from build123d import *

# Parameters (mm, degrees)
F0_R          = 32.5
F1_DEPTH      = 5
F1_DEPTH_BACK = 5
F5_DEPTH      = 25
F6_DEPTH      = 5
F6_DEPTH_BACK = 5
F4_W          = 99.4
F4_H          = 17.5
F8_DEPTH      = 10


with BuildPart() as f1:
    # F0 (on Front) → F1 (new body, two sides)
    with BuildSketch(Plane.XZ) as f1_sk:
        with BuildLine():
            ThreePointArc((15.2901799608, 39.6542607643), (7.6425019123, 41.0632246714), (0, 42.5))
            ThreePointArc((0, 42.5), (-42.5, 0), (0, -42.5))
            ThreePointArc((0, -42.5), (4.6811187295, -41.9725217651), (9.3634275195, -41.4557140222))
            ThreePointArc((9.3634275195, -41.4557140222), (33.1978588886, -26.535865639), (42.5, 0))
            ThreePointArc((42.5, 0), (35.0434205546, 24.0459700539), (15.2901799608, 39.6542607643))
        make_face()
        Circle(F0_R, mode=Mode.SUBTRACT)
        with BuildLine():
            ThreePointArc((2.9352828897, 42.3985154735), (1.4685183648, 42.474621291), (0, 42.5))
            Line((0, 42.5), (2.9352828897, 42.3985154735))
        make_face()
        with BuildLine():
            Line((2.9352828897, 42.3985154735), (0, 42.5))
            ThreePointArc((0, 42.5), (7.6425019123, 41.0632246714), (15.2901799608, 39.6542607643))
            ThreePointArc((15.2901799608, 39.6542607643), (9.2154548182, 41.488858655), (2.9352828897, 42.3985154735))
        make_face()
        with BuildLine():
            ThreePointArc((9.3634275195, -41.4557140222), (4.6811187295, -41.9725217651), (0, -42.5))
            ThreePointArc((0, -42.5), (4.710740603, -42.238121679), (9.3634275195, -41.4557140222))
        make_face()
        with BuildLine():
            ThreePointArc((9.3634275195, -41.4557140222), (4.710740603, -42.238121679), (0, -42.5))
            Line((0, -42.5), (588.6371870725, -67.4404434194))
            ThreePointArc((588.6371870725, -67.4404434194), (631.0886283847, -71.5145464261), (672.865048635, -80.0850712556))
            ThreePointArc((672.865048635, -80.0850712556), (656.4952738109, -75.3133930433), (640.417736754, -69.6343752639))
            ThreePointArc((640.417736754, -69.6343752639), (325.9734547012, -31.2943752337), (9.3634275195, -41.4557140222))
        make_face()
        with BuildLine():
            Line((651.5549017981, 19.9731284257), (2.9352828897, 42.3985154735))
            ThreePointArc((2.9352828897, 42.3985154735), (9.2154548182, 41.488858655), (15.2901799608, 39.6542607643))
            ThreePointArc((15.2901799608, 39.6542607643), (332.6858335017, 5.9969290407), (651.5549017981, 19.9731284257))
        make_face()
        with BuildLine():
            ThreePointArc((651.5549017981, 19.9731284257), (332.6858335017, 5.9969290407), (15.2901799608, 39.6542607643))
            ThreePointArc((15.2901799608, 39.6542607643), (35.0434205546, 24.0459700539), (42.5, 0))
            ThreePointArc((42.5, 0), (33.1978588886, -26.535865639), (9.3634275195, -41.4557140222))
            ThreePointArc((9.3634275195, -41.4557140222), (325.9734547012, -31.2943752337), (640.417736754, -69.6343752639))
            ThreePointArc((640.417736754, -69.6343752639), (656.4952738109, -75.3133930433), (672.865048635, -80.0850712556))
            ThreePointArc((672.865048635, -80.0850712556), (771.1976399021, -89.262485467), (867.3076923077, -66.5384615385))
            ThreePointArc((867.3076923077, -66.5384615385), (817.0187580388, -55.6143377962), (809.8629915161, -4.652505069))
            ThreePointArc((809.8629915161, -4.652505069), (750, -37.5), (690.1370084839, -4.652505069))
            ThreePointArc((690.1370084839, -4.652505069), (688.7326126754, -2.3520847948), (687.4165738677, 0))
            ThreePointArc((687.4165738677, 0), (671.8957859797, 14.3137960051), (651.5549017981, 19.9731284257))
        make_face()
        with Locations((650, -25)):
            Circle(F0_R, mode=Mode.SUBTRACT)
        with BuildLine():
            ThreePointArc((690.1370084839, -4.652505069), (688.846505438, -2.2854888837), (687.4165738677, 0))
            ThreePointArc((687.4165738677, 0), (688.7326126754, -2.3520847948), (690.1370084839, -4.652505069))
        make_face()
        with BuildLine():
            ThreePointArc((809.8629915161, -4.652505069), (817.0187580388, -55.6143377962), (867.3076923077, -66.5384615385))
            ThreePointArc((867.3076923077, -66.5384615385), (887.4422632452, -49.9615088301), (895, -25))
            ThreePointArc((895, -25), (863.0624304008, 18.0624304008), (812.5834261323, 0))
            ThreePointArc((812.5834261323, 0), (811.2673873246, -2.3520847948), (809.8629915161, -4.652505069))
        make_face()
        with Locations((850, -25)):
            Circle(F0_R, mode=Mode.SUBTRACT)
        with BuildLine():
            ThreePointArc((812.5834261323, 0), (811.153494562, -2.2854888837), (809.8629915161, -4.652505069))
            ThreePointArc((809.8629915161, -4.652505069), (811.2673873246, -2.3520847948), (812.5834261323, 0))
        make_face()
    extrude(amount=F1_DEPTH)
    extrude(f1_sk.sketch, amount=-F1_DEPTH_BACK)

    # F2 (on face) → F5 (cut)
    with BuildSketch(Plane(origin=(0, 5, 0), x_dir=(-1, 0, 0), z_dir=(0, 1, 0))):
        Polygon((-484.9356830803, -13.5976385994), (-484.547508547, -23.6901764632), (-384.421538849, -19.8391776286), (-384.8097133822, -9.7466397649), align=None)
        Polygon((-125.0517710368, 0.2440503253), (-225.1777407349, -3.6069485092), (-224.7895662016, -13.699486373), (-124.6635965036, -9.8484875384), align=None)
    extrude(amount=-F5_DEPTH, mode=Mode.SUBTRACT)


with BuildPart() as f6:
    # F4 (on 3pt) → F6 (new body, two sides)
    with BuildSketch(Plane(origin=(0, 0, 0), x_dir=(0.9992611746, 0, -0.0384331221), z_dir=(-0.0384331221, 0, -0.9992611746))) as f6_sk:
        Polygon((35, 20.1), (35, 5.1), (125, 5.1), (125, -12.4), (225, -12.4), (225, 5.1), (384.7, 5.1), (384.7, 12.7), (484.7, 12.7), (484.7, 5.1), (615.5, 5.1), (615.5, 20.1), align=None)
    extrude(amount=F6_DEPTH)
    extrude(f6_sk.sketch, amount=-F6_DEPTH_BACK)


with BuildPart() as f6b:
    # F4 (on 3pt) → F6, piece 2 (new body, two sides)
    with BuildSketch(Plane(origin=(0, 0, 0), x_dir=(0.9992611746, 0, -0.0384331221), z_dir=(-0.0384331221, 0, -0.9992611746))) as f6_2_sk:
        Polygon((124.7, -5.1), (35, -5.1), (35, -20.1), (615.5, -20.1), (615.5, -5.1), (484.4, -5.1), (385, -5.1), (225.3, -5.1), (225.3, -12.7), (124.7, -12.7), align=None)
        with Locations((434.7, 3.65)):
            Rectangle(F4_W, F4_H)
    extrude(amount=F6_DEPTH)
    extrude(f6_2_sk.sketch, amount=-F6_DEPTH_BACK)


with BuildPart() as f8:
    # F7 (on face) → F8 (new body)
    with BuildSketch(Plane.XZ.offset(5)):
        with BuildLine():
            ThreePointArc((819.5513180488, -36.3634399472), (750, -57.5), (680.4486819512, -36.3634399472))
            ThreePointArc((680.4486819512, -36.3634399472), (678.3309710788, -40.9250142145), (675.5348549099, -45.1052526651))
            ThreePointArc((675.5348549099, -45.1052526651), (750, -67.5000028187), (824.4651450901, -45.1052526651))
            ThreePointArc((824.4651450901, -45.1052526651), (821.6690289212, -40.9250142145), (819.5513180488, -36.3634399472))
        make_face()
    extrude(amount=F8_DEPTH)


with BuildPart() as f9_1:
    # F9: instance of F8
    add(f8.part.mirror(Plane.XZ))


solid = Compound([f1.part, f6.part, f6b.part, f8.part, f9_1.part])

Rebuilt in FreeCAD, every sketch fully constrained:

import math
import FreeCAD as App
import Part
import Sketcher
Q = App.Units.Quantity

doc = App.newDocument("Part")
body = doc.addObject("PartDesign::Body", "Body")

# Sketch on XZ plane
sketch1 = body.newObject("Sketcher::SketchObject", "Sketch")
sketch1.AttachmentSupport = (doc.getObject("XZ_Plane"), [""])
sketch1.MapMode = "FlatFace"
sketch1.addGeometry([
    Part.LineSegment(App.Vector(651.6, 20, 0), App.Vector(2.9, 42.4, 0)),  # 0
    Part.ArcOfCircle(Part.Circle(App.Vector(0, 0, 0), App.Vector(0, 0, 1), 42.5), math.radians(86.04), math.radians(90)),  # 1
    Part.ArcOfCircle(Part.Circle(App.Vector(0, 0, 0), App.Vector(0, 0, 1), 42.5), math.radians(90), math.radians(270)),  # 2
    Part.LineSegment(App.Vector(0, -42.5, 0), App.Vector(588.6, -67.4, 0)),  # 3
    Part.ArcOfCircle(Part.Circle(App.Vector(571.7, -467.1, 0), App.Vector(0, 0, 1), 400), math.radians(75.35), math.radians(87.57)),  # 4
    Part.ArcOfCircle(Part.Circle(App.Vector(750, 215, 0), App.Vector(0, 0, 1), 305), math.radians(-105), math.radians(-67)),  # 5
    Part.ArcOfCircle(Part.Circle(App.Vector(850, -25, 0), App.Vector(0, 0, 1), 45), math.radians(-67), math.radians(0)),  # 6
    Part.ArcOfCircle(Part.Circle(App.Vector(850, -25, 0), App.Vector(0, 0, 1), 45), math.radians(0), math.radians(146)),  # 7
    Part.ArcOfCircle(Part.Circle(App.Vector(850, -25, 0), App.Vector(0, 0, 1), 45), math.radians(146.25), math.radians(153.12)),  # 8
    Part.ArcOfCircle(Part.Circle(App.Vector(750, 33.5, 0), App.Vector(0, 0, 1), 71), math.radians(-148), math.radians(-32)),  # 9
    Part.ArcOfCircle(Part.Circle(App.Vector(650, -25, 0), App.Vector(0, 0, 1), 45), math.radians(26.88), math.radians(33.75)),  # 10
    Part.ArcOfCircle(Part.Circle(App.Vector(650, -25, 0), App.Vector(0, 0, 1), 45), math.radians(34), math.radians(88)),  # 11
    Part.Circle(App.Vector(650, -25, 0), App.Vector(0, 0, 1), 32.5),  # 12
    Part.Circle(App.Vector(850, -25, 0), App.Vector(0, 0, 1), 32.5),  # 13
    Part.Circle(App.Vector(0, 0, 0), App.Vector(0, 0, 1), 32.5),  # 14
], False)
sketch1.addConstraint([
    Sketcher.Constraint("Coincident", 0, 2, 1, 1),
    Sketcher.Constraint("Tangent", 1, 2, 2, 1),
    Sketcher.Constraint("Coincident", 2, 2, 3, 1),
    Sketcher.Constraint("Tangent", 3, 2, 4, 2),
    Sketcher.Constraint("Tangent", 4, 1, 5, 1),
    Sketcher.Constraint("Tangent", 5, 2, 6, 1),
    Sketcher.Constraint("Tangent", 6, 2, 7, 1),
    Sketcher.Constraint("Tangent", 7, 2, 8, 1),
    Sketcher.Constraint("Coincident", 8, 2, 9, 2),
    Sketcher.Constraint("Coincident", 9, 1, 10, 1),
    Sketcher.Constraint("Tangent", 10, 2, 11, 1),
    Sketcher.Constraint("Tangent", 11, 2, 0, 1),
    Sketcher.Constraint("Coincident", 1, 3, -1, 1),
    Sketcher.Constraint("Coincident", 14, 3, -1, 1),
    Sketcher.Constraint("Coincident", 8, 3, 6, 3),
    Sketcher.Constraint("Coincident", 12, 3, 10, 3),
    Sketcher.Constraint("Coincident", 13, 3, 6, 3),
    Sketcher.Constraint("Equal", 1, 2),
    Sketcher.Constraint("Equal", 8, 10),
    Sketcher.Constraint("Equal", 10, 11),
    Sketcher.Constraint("Equal", 12, 13),
    Sketcher.Constraint("Equal", 13, 14),
    Sketcher.Constraint("PointOnObject", 1, 2, -2),
    Sketcher.Constraint("PointOnObject", 2, 2, -2),
    Sketcher.Constraint("PointOnObject", 7, 2, -1),
    Sketcher.Constraint("PointOnObject", 10, 2, -1),
    Sketcher.Constraint("Horizontal", 8, 3, 10, 3),
    Sketcher.Constraint("Horizontal", 13, 3, 6, 2),
    Sketcher.Constraint("Horizontal", 8, 2, 9, 1),
    Sketcher.Constraint("Vertical", 5, 3, 9, 3),
    Sketcher.Constraint("Diameter", 12, Q("65 mm")),
    Sketcher.Constraint("Radius", 4, Q("400 mm")),
    Sketcher.Constraint("Radius", 5, Q("305 mm")),
    Sketcher.Constraint("Radius", 6, Q("45 mm")),
    Sketcher.Constraint("Radius", 1, Q("42.5 mm")),
    Sketcher.Constraint("DistanceX", -1, 1, 5, 3, Q("750 mm")),
    Sketcher.Constraint("DistanceY", -1, 1, 5, 3, Q("215 mm")),
    Sketcher.Constraint("DistanceX", -1, 1, 6, 3, Q("850 mm")),
    Sketcher.Constraint("Radius", 9, Q("70.97247 mm")),
    Sketcher.Constraint("Distance", 0, Q("649.007171 mm")),
    Sketcher.Constraint("Distance", 3, Q("589.165311 mm")),
    Sketcher.Constraint("DistanceY", -1, 1, 9, 3, Q("33.47247 mm")),
])
pad1 = body.newObject("PartDesign::Pad", "Pad")
pad1.Profile = sketch1
pad1.Type = "TwoLengths"
pad1.Length = 5
pad1.Length2 = 5

# Sketch on XZ plane
sketch2 = body.newObject("Sketcher::SketchObject", "Sketch001")
sketch2.AttachmentSupport = (doc.getObject("XZ_Plane"), [""])
sketch2.MapMode = "FlatFace"
sketch2.AttachmentOffset = App.Placement(App.Vector(0, 0, -5), App.Rotation())
sketch2.addGeometry([
    Part.LineSegment(App.Vector(485, -14, 0), App.Vector(485, -24, 0)),  # 0
    Part.LineSegment(App.Vector(485, -24, 0), App.Vector(384, -20, 0)),  # 1
    Part.LineSegment(App.Vector(384, -20, 0), App.Vector(385, -10, 0)),  # 2
    Part.LineSegment(App.Vector(385, -10, 0), App.Vector(485, -14, 0)),  # 3
    Part.LineSegment(App.Vector(125, 0, 0), App.Vector(225, -4, 0)),  # 4
    Part.LineSegment(App.Vector(225, -4, 0), App.Vector(225, -14, 0)),  # 5
    Part.LineSegment(App.Vector(225, -14, 0), App.Vector(125, -10, 0)),  # 6
    Part.LineSegment(App.Vector(125, -10, 0), App.Vector(125, 0, 0)),  # 7
], False)
sketch2.addConstraint([
    Sketcher.Constraint("Coincident", 0, 2, 1, 1),
    Sketcher.Constraint("Coincident", 1, 2, 2, 1),
    Sketcher.Constraint("Coincident", 2, 2, 3, 1),
    Sketcher.Constraint("Coincident", 3, 2, 0, 1),
    Sketcher.Constraint("Coincident", 4, 2, 5, 1),
    Sketcher.Constraint("Coincident", 5, 2, 6, 1),
    Sketcher.Constraint("Coincident", 6, 2, 7, 1),
    Sketcher.Constraint("Coincident", 7, 2, 4, 1),
    Sketcher.Constraint("Perpendicular", 0, 1),
    Sketcher.Constraint("Perpendicular", 1, 2),
    Sketcher.Constraint("Perpendicular", 2, 3),
    Sketcher.Constraint("Parallel", 3, 4),
    Sketcher.Constraint("Perpendicular", 4, 5),
    Sketcher.Constraint("Perpendicular", 5, 6),
    Sketcher.Constraint("Perpendicular", 6, 7),
    Sketcher.Constraint("Equal", 3, 4),
    Sketcher.Constraint("Equal", 2, 5),
    Sketcher.Constraint("Distance", 0, Q("10.1 mm")),
    Sketcher.Constraint("Distance", 1, Q("100.2 mm")),
    Sketcher.Constraint("DistanceY", 0, 2, 1, 2, Q("3.850999 mm")),
    Sketcher.Constraint("DistanceX", 4, 2, 1, 2, Q("159.243798 mm")),
    Sketcher.Constraint("DistanceX", -1, 1, 0, 2, Q("484.547509 mm")),
    Sketcher.Constraint("DistanceY", 2, 2, -1, 1, Q("9.74664 mm")),
    Sketcher.Constraint("DistanceY", 4, 2, -1, 1, Q("3.606949 mm")),
])
pocket1 = body.newObject("PartDesign::Pocket", "Pocket")
pocket1.Profile = sketch2
pocket1.Length = 25
pocket1.Reversed = True
body2 = doc.addObject("PartDesign::Body", "Body001")

# Sketch on an angled plane
sketch3 = body2.newObject("Sketcher::SketchObject", "Sketch002")
sketch3.Placement = App.Placement(App.Vector(0, 0, 0), App.Rotation(App.Vector(0.999261175, 0, -0.038433122), App.Vector(0, -1.000000001, 0), App.Vector(-0.038433122, 0, -0.999261175), "ZXY"))
sketch3.addGeometry([
    Part.LineSegment(App.Vector(35, 20, 0), App.Vector(35, 5, 0)),  # 0
    Part.LineSegment(App.Vector(35, 5, 0), App.Vector(125, 5, 0)),  # 1
    Part.LineSegment(App.Vector(125, 5, 0), App.Vector(125, -12, 0)),  # 2
    Part.LineSegment(App.Vector(125, -12, 0), App.Vector(225, -12, 0)),  # 3
    Part.LineSegment(App.Vector(225, -12, 0), App.Vector(225, 5, 0)),  # 4
    Part.LineSegment(App.Vector(225, 5, 0), App.Vector(385, 5, 0)),  # 5
    Part.LineSegment(App.Vector(385, 5, 0), App.Vector(385, 13, 0)),  # 6
    Part.LineSegment(App.Vector(385, 13, 0), App.Vector(485, 13, 0)),  # 7
    Part.LineSegment(App.Vector(485, 13, 0), App.Vector(485, 5, 0)),  # 8
    Part.LineSegment(App.Vector(485, 5, 0), App.Vector(616, 5, 0)),  # 9
    Part.LineSegment(App.Vector(616, 5, 0), App.Vector(616, 20, 0)),  # 10
    Part.LineSegment(App.Vector(616, 20, 0), App.Vector(35, 20, 0)),  # 11
], False)
sketch3.addConstraint([
    Sketcher.Constraint("Coincident", 0, 2, 1, 1),
    Sketcher.Constraint("Coincident", 1, 2, 2, 1),
    Sketcher.Constraint("Coincident", 2, 2, 3, 1),
    Sketcher.Constraint("Coincident", 3, 2, 4, 1),
    Sketcher.Constraint("Coincident", 4, 2, 5, 1),
    Sketcher.Constraint("Coincident", 5, 2, 6, 1),
    Sketcher.Constraint("Coincident", 6, 2, 7, 1),
    Sketcher.Constraint("Coincident", 7, 2, 8, 1),
    Sketcher.Constraint("Coincident", 8, 2, 9, 1),
    Sketcher.Constraint("Coincident", 9, 2, 10, 1),
    Sketcher.Constraint("Coincident", 10, 2, 11, 1),
    Sketcher.Constraint("Coincident", 11, 2, 0, 1),
    Sketcher.Constraint("Vertical", 0),
    Sketcher.Constraint("Horizontal", 1),
    Sketcher.Constraint("Vertical", 2),
    Sketcher.Constraint("Horizontal", 3),
    Sketcher.Constraint("Vertical", 4),
    Sketcher.Constraint("Horizontal", 5),
    Sketcher.Constraint("Vertical", 6),
    Sketcher.Constraint("Horizontal", 7),
    Sketcher.Constraint("Vertical", 8),
    Sketcher.Constraint("Horizontal", 9),
    Sketcher.Constraint("Vertical", 10),
    Sketcher.Constraint("Horizontal", 11),
    Sketcher.Constraint("Horizontal", 1, 2, 4, 2),
    Sketcher.Constraint("Horizontal", 5, 2, 8, 2),
    Sketcher.Constraint("Equal", 3, 7),
    Sketcher.Constraint("DistanceX", 1, 1, 1, 2, Q("90 mm")),
    Sketcher.Constraint("DistanceX", 3, 1, 3, 2, Q("100 mm")),
    Sketcher.Constraint("DistanceY", 0, 2, 0, 1, Q("15 mm")),
    Sketcher.Constraint("DistanceX", 5, 1, 5, 2, Q("159.7 mm")),
    Sketcher.Constraint("DistanceX", 9, 1, 9, 2, Q("130.8 mm")),
    Sketcher.Constraint("DistanceY", 2, 2, 2, 1, Q("17.5 mm")),
    Sketcher.Constraint("DistanceY", 6, 1, 6, 2, Q("7.6 mm")),
    Sketcher.Constraint("DistanceX", -1, 1, 0, 2, Q("35 mm")),
    Sketcher.Constraint("DistanceY", -1, 1, 0, 2, Q("5.1 mm")),
])
pad2 = body2.newObject("PartDesign::Pad", "Pad001")
pad2.Profile = sketch3
pad2.Type = "TwoLengths"
pad2.Length = 5
pad2.Length2 = 5
body3 = doc.addObject("PartDesign::Body", "Body002")

# Sketch on an angled plane
sketch4 = body3.newObject("Sketcher::SketchObject", "Sketch003")
sketch4.Placement = App.Placement(App.Vector(0, 0, 0), App.Rotation(App.Vector(0.999261175, 0, -0.038433122), App.Vector(0, -1.000000001, 0), App.Vector(-0.038433122, 0, -0.999261175), "ZXY"))
sketch4.addGeometry([
    Part.LineSegment(App.Vector(125, -5, 0), App.Vector(35, -5, 0)),  # 0
    Part.LineSegment(App.Vector(35, -5, 0), App.Vector(35, -20, 0)),  # 1
    Part.LineSegment(App.Vector(35, -20, 0), App.Vector(616, -20, 0)),  # 2
    Part.LineSegment(App.Vector(616, -20, 0), App.Vector(616, -5, 0)),  # 3
    Part.LineSegment(App.Vector(616, -5, 0), App.Vector(484, -5, 0)),  # 4
    Part.LineSegment(App.Vector(484, -5, 0), App.Vector(484, 12, 0)),  # 5
    Part.LineSegment(App.Vector(484, 12, 0), App.Vector(385, 12, 0)),  # 6
    Part.LineSegment(App.Vector(385, 12, 0), App.Vector(385, -5, 0)),  # 7
    Part.LineSegment(App.Vector(385, -5, 0), App.Vector(225, -5, 0)),  # 8
    Part.LineSegment(App.Vector(225, -5, 0), App.Vector(225, -13, 0)),  # 9
    Part.LineSegment(App.Vector(225, -13, 0), App.Vector(125, -13, 0)),  # 10
    Part.LineSegment(App.Vector(125, -13, 0), App.Vector(125, -5, 0)),  # 11
], False)
sketch4.addConstraint([
    Sketcher.Constraint("Coincident", 0, 2, 1, 1),
    Sketcher.Constraint("Coincident", 1, 2, 2, 1),
    Sketcher.Constraint("Coincident", 2, 2, 3, 1),
    Sketcher.Constraint("Coincident", 3, 2, 4, 1),
    Sketcher.Constraint("Coincident", 4, 2, 5, 1),
    Sketcher.Constraint("Coincident", 5, 2, 6, 1),
    Sketcher.Constraint("Coincident", 6, 2, 7, 1),
    Sketcher.Constraint("Coincident", 7, 2, 8, 1),
    Sketcher.Constraint("Coincident", 8, 2, 9, 1),
    Sketcher.Constraint("Coincident", 9, 2, 10, 1),
    Sketcher.Constraint("Coincident", 10, 2, 11, 1),
    Sketcher.Constraint("Coincident", 11, 2, 0, 1),
    Sketcher.Constraint("Horizontal", 0),
    Sketcher.Constraint("Vertical", 1),
    Sketcher.Constraint("Horizontal", 2),
    Sketcher.Constraint("Vertical", 3),
    Sketcher.Constraint("Horizontal", 4),
    Sketcher.Constraint("Vertical", 5),
    Sketcher.Constraint("Horizontal", 6),
    Sketcher.Constraint("Vertical", 7),
    Sketcher.Constraint("Horizontal", 8),
    Sketcher.Constraint("Vertical", 9),
    Sketcher.Constraint("Horizontal", 10),
    Sketcher.Constraint("Vertical", 11),
    Sketcher.Constraint("Horizontal", 0, 2, 3, 2),
    Sketcher.Constraint("Horizontal", 4, 2, 7, 2),
    Sketcher.Constraint("DistanceY", 1, 2, 1, 1, Q("15 mm")),
    Sketcher.Constraint("DistanceX", 0, 2, 0, 1, Q("89.7 mm")),
    Sketcher.Constraint("DistanceX", 2, 1, 2, 2, Q("580.5 mm")),
    Sketcher.Constraint("DistanceX", 4, 2, 4, 1, Q("131.1 mm")),
    Sketcher.Constraint("DistanceX", 6, 2, 6, 1, Q("99.4 mm")),
    Sketcher.Constraint("DistanceX", 8, 2, 8, 1, Q("159.7 mm")),
    Sketcher.Constraint("DistanceY", 5, 1, 5, 2, Q("17.5 mm")),
    Sketcher.Constraint("DistanceY", 9, 2, 9, 1, Q("7.6 mm")),
    Sketcher.Constraint("DistanceX", -1, 1, 0, 2, Q("35 mm")),
    Sketcher.Constraint("DistanceY", 0, 2, -1, 1, Q("5.1 mm")),
])
pad3 = body3.newObject("PartDesign::Pad", "Pad002")
pad3.Profile = sketch4
pad3.Type = "TwoLengths"
pad3.Length = 5
pad3.Length2 = 5
body4 = doc.addObject("PartDesign::Body", "Body003")

# Sketch on XZ plane
sketch5 = body4.newObject("Sketcher::SketchObject", "Sketch004")
sketch5.AttachmentSupport = (doc.getObject("XZ_Plane003"), [""])
sketch5.MapMode = "FlatFace"
sketch5.AttachmentOffset = App.Placement(App.Vector(0, 0, 5), App.Rotation())
sketch5.addGeometry([
    Part.ArcOfCircle(Part.Circle(App.Vector(750, 68, 0), App.Vector(0, 0, 1), 125), math.radians(-124), math.radians(-56)),
    Part.ArcOfCircle(Part.Circle(App.Vector(650, -25, 0), App.Vector(0, 0, 1), 32), math.radians(-38.22), math.radians(-20.47)),
    Part.ArcOfCircle(Part.Circle(App.Vector(750, 68, 0), App.Vector(0, 0, 1), 135), math.radians(-123), math.radians(-57)),
    Part.ArcOfCircle(Part.Circle(App.Vector(850, -25, 0), App.Vector(0, 0, 1), 32), math.radians(-159.53), math.radians(-141.78)),
], False)
sketch5.addConstraint([
    Sketcher.Constraint("Coincident", 0, 1, 1, 2),
    Sketcher.Constraint("Coincident", 1, 1, 2, 1),
    Sketcher.Constraint("Coincident", 2, 2, 3, 2),
    Sketcher.Constraint("Coincident", 3, 1, 0, 2),
    Sketcher.Constraint("Coincident", 2, 3, 0, 3),
    Sketcher.Constraint("Equal", 1, 3),
    Sketcher.Constraint("Horizontal", 1, 3, 3, 3),
    Sketcher.Constraint("Horizontal", 1, 1, 2, 2),
    Sketcher.Constraint("Radius", 0, Q("125 mm")),
    Sketcher.Constraint("Radius", 1, Q("32.5 mm")),
    Sketcher.Constraint("DistanceX", -1, 1, 0, 3, Q("750 mm")),
    Sketcher.Constraint("DistanceX", -1, 1, 1, 3, Q("650 mm")),
    Sketcher.Constraint("DistanceY", 1, 3, -1, 1, Q("25 mm")),
    Sketcher.Constraint("DistanceY", -1, 1, 0, 3, Q("67.5 mm")),
    Sketcher.Constraint("Radius", 2, Q("135.000003 mm")),
])
pad4 = body4.newObject("PartDesign::Pad", "Pad003")
pad4.Profile = sketch5
pad4.Length = 10
body5 = doc.addObject("PartDesign::Body", "Body004")
doc.recompute()

mirroring = doc.addObject("Part::Mirroring", "Mirroring")
mirroring.Source = body4
mirroring.Base = App.Vector(0, 0, 0)
mirroring.Normal = App.Vector(0, -1, 0)
body5.BaseFeature = mirroring
doc.recompute()
mirroring.Visibility = False

doc.recompute()
